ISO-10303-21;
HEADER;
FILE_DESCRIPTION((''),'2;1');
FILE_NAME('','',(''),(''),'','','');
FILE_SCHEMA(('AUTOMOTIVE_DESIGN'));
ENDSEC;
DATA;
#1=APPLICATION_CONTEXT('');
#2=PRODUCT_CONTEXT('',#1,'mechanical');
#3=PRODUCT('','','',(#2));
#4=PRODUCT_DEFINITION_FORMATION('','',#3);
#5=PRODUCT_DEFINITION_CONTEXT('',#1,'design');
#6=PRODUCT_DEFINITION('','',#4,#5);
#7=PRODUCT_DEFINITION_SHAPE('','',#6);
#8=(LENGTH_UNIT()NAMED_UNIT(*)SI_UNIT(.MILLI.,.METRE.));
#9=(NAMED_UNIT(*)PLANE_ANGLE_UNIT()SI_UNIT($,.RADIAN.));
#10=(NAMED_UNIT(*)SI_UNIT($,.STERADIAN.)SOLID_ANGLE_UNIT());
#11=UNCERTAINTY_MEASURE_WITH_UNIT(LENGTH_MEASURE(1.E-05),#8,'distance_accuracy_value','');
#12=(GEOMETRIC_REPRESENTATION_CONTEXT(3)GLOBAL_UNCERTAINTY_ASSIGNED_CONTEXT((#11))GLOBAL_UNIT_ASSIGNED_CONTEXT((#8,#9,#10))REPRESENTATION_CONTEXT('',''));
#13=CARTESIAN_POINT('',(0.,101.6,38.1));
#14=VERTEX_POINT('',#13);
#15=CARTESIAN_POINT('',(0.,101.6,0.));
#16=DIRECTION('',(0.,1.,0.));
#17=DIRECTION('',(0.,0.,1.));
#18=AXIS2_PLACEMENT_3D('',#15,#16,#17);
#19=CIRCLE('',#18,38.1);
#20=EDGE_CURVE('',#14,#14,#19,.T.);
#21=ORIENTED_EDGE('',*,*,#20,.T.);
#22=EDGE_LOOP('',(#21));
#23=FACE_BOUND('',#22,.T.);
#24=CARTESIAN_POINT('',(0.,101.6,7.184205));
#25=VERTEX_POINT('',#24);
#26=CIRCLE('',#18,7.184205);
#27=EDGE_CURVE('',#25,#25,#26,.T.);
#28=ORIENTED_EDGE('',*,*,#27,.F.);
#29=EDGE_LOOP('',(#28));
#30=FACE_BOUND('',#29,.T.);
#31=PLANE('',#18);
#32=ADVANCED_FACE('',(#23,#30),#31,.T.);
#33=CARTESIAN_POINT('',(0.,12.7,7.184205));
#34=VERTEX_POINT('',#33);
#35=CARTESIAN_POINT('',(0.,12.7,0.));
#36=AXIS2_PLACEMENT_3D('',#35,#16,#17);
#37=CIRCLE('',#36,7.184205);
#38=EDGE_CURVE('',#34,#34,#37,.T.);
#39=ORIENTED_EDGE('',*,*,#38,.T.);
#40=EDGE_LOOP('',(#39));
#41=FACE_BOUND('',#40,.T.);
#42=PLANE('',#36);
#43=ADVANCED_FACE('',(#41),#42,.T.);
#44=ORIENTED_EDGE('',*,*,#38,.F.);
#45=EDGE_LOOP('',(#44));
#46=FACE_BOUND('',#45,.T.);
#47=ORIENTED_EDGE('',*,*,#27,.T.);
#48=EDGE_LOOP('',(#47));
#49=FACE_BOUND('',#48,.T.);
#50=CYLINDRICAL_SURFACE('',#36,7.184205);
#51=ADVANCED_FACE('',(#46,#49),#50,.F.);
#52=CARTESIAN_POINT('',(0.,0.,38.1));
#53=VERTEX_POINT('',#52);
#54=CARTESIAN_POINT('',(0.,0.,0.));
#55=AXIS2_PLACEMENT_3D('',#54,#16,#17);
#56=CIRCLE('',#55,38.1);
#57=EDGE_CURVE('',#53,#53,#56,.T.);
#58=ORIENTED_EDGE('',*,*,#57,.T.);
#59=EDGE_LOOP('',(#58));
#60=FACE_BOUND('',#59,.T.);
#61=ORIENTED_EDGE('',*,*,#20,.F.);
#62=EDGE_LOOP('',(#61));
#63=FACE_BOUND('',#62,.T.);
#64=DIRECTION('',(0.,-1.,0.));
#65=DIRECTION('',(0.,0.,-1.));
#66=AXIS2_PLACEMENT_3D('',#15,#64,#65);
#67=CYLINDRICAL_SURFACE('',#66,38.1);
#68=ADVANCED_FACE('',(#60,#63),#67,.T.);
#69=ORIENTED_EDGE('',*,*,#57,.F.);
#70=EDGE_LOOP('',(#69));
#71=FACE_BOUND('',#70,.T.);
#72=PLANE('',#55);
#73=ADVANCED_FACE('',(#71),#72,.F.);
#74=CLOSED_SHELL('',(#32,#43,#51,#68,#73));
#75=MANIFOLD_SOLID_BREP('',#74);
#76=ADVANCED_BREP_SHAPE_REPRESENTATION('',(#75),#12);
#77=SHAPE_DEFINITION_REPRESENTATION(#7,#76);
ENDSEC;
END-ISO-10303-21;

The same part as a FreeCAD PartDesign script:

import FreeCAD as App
import Part
import Sketcher
Q = App.Units.Quantity

doc = App.newDocument("Part")
body = doc.addObject("PartDesign::Body", "Body")

sketch1 = body.newObject("Sketcher::SketchObject", "Sketch")
sketch1.AttachmentSupport = (doc.getObject("XZ_Plane"), [""])
sketch1.MapMode = "FlatFace"
sketch1.addGeometry(Part.Circle(App.Vector(0, 0, 0), App.Vector(0, 0, 1), 38), False)
sketch1.addConstraint([
    Sketcher.Constraint("Coincident", 0, 3, -1, 1),
    Sketcher.Constraint("Diameter", 0, Q("3 in")),
])
pad1 = body.newObject("PartDesign::Pad", "Pad")
pad1.Profile = sketch1
pad1.Length = Q("4 in")
pad1.Reversed = True

sketch2 = body.newObject("Sketcher::SketchObject", "Sketch001")
sketch2.AttachmentSupport = (doc.getObject("XZ_Plane"), [""])
sketch2.MapMode = "FlatFace"
sketch2.AttachmentOffset = App.Placement(App.Vector(0, 0, -4 * 25.4), App.Rotation())
sketch2.addGeometry(Part.Circle(App.Vector(0, 0, 0), App.Vector(0, 0, 1), 7), False)
sketch2.addConstraint([
    Sketcher.Constraint("Coincident", 0, 3, -1, 1),
    Sketcher.Constraint("Diameter", 0, Q("14.36841 mm")),
])
pocket1 = body.newObject("PartDesign::Pocket", "Pocket")
pocket1.Profile = sketch2
pocket1.Length = Q("3.5 in")
pocket1.Reversed = True

doc.recompute()
